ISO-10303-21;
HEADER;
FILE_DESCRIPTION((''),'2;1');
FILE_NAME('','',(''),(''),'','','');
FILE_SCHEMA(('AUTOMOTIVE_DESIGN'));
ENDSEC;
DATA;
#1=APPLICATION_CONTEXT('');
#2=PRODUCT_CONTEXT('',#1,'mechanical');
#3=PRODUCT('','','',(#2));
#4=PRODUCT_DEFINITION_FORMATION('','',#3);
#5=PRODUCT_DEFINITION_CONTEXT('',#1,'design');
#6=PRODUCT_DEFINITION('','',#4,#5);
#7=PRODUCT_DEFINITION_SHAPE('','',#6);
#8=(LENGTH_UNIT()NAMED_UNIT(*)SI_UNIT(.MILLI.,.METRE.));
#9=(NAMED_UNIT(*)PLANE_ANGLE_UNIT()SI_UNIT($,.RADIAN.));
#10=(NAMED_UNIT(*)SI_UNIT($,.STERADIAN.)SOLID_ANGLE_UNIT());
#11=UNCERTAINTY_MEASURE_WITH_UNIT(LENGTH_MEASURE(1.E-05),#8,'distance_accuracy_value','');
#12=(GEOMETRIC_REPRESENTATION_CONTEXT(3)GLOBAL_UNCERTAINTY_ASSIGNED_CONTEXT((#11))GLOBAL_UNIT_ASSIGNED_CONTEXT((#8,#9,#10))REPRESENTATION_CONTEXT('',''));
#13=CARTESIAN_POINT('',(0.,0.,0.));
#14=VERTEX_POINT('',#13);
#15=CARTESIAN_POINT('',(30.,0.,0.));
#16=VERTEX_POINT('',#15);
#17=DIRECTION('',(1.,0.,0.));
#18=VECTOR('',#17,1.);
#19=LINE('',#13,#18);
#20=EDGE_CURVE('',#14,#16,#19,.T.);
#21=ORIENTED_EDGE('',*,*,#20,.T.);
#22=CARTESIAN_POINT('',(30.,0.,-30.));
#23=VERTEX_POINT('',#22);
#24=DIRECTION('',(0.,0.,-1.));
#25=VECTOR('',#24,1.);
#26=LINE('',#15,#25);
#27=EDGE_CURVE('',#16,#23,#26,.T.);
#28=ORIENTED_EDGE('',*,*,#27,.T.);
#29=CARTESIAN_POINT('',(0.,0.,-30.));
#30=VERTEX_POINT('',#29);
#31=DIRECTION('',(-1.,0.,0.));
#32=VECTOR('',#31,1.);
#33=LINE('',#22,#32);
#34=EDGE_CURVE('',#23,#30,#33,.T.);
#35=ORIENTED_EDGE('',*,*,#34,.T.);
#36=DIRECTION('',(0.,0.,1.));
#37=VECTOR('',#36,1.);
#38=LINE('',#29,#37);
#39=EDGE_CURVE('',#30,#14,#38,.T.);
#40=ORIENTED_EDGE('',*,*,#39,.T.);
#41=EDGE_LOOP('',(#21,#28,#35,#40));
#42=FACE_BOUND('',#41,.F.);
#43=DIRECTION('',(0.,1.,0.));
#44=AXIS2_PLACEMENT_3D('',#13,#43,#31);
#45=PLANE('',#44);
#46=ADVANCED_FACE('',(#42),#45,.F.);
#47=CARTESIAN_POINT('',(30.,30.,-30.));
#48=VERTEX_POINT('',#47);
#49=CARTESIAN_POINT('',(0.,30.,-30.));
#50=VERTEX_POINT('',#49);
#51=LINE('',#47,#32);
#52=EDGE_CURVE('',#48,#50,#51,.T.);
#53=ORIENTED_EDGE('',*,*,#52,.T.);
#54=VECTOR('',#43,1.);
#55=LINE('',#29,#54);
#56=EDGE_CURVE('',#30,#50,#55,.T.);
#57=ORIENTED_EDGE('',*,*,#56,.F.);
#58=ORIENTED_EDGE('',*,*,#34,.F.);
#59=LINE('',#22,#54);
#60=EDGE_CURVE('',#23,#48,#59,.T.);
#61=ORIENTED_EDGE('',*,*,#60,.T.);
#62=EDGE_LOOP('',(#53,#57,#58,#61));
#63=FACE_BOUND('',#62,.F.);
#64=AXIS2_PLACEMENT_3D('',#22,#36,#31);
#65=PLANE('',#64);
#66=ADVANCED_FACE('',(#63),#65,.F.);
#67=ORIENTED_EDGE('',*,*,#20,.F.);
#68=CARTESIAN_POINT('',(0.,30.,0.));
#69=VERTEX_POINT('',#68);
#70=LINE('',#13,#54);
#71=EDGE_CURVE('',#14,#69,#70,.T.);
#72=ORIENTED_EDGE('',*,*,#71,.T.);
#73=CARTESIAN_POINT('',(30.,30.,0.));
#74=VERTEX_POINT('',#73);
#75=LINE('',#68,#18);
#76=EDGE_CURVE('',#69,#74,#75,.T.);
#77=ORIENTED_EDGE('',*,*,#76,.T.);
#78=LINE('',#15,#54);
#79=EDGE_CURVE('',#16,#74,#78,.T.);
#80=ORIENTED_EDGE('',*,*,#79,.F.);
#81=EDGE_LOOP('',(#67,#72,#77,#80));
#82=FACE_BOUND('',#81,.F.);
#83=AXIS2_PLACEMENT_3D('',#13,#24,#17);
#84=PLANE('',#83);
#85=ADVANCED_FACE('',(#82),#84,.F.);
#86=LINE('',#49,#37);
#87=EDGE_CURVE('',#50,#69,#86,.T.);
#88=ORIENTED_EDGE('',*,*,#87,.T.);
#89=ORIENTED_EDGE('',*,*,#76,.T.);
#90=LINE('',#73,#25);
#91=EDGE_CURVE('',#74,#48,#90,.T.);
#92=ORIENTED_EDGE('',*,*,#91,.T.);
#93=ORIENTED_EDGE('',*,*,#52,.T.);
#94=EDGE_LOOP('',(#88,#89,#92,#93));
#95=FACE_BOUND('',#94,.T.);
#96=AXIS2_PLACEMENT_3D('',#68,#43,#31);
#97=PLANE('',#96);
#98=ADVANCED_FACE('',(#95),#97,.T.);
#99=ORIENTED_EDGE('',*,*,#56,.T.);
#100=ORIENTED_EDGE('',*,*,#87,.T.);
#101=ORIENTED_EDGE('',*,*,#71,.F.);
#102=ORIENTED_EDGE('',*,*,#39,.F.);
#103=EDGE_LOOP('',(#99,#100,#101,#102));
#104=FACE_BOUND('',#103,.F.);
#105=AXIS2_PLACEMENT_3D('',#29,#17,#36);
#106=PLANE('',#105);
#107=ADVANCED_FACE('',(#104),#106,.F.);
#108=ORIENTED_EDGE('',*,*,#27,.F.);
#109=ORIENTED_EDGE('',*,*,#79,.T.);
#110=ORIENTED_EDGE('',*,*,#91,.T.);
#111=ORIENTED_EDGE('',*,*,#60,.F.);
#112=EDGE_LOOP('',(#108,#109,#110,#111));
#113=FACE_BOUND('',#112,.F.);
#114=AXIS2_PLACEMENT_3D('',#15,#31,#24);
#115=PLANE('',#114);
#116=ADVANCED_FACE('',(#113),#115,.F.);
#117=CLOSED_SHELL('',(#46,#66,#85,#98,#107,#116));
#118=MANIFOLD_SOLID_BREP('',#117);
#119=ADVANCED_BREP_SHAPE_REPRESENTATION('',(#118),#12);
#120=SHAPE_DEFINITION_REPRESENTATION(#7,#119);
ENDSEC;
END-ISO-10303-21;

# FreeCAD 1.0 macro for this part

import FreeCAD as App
import Part
import Sketcher


def add_polygon(sketch, points):
    """Adds a closed chain of lines whose ends are joined by coincident constraints."""
    first, n = sketch.GeometryCount, len(points)
    for a, b in zip(points, points[1:] + points[:1]):
        sketch.addGeometry(Part.LineSegment(App.Vector(*a, 0), App.Vector(*b, 0)), False)
    for i in range(n):
        sketch.addConstraint(Sketcher.Constraint("Coincident", first + i, 2, first + (i + 1) % n, 1))

doc = App.newDocument("Part")
body = doc.addObject("PartDesign::Body", "Body")

# Sketch on XZ plane
sketch1 = doc.addObject("Sketcher::SketchObject", "Sketch")
body.addObject(sketch1)
sketch1.AttachmentSupport = (doc.XZ_Plane, [""])
sketch1.MapMode = "FlatFace"
add_polygon(sketch1, [(0, -30), (0, 0), (30, 0), (30, -30)])  # lines 0-3
sketch1.addConstraint([
    Sketcher.Constraint("Vertical", 0),
    Sketcher.Constraint("Horizontal", 1),
    Sketcher.Constraint("Vertical", 2),
    Sketcher.Constraint("Horizontal", 3),
    Sketcher.Constraint("Coincident", 0, 2, -1, 1),
    Sketcher.Constraint("Equal", 3, 0),
    Sketcher.Constraint("DistanceX", 1, 1, 1, 2, 30.0),
])
pad1 = doc.addObject("PartDesign::Pad", "Pad")
body.addObject(pad1)
pad1.Profile = sketch1
pad1.Length = 30
pad1.Reversed = True

doc.recompute()
